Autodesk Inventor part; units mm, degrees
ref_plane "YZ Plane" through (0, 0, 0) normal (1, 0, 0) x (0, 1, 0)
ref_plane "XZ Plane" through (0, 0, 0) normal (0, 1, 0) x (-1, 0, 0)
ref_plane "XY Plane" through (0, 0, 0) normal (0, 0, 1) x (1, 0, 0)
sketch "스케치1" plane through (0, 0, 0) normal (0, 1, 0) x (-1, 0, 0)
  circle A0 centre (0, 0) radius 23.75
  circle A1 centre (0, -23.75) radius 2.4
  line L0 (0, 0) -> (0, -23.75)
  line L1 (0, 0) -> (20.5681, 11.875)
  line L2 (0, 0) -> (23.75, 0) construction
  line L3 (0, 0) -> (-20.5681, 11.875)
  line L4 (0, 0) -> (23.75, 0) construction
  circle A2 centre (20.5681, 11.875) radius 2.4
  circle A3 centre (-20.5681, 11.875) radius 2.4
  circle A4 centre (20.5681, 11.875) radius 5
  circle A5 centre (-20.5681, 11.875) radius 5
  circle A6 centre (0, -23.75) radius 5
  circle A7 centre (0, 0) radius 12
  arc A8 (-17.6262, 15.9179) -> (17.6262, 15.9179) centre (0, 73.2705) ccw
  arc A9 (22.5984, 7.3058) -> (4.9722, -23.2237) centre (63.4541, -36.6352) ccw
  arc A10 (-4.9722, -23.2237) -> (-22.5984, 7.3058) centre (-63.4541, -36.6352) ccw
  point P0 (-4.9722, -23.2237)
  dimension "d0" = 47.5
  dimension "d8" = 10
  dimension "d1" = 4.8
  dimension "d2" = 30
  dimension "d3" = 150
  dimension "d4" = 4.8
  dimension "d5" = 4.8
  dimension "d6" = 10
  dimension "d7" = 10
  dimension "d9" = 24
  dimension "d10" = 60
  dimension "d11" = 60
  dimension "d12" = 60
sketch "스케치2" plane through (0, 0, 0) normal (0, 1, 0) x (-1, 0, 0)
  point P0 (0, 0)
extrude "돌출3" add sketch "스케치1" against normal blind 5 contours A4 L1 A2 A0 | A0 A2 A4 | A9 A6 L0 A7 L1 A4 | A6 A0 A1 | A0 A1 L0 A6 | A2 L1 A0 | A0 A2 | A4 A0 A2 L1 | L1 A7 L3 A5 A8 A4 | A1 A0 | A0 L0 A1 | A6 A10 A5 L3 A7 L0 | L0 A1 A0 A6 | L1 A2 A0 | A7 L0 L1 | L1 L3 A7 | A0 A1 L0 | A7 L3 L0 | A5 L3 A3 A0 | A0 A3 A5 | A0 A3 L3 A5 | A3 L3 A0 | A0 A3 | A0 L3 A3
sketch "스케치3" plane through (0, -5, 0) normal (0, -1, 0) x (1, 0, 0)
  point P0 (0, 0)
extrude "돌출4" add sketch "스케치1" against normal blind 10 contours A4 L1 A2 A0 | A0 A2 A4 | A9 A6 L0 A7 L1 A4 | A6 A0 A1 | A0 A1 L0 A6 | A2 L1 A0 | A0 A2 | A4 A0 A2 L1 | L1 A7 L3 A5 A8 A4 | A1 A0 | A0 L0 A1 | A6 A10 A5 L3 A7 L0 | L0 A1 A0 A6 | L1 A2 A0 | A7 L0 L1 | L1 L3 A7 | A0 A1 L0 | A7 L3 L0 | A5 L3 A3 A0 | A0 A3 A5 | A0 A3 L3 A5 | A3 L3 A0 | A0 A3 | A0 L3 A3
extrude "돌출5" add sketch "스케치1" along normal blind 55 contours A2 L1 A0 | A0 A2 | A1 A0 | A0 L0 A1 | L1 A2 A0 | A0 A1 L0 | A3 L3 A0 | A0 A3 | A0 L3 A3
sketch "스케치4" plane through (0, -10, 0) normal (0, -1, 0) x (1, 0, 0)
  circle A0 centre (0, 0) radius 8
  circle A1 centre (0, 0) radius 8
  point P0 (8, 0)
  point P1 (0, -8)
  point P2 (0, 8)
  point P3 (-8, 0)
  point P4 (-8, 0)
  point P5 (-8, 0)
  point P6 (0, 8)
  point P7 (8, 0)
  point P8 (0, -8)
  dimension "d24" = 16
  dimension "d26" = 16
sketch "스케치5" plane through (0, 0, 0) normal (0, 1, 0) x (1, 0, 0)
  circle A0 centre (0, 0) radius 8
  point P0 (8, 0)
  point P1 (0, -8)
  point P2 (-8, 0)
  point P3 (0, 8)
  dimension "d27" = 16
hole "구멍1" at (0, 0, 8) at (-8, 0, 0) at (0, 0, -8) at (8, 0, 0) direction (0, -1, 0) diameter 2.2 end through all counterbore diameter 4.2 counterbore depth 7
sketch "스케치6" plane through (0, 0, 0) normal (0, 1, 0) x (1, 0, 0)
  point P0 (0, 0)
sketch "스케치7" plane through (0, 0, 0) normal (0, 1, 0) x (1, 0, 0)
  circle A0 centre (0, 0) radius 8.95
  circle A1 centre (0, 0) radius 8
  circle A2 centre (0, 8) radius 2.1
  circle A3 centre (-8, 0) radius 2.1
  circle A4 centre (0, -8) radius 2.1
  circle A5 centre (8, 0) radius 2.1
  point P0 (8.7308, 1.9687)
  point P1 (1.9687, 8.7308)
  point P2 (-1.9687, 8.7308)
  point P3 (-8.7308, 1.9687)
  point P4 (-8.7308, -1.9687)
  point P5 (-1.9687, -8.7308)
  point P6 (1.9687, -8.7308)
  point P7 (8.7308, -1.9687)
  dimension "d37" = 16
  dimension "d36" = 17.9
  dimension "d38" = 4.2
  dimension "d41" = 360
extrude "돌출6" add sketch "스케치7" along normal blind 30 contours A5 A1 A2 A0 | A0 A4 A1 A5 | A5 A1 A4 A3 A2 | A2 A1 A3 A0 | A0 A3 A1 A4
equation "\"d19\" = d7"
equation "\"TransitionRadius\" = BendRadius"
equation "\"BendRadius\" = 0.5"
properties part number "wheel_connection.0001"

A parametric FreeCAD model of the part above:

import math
import FreeCAD as App
import Part
import Sketcher

V = App.Vector
Q = App.Units.Quantity

doc = App.newDocument("Part")
body = doc.addObject("PartDesign::Body", "Body")

sketch1 = body.newObject("Sketcher::SketchObject", "Sketch")
sketch1.AttachmentSupport = (doc.getObject("XZ_Plane"), [""])
sketch1.MapMode = "FlatFace"
sketch1.addGeometry(Part.ArcOfCircle(Part.Circle(V(-63, -37, 0), V(0, 0, 1), 60), math.radians(13), math.radians(47)), False)
sketch1.addGeometry(Part.ArcOfCircle(Part.Circle(V(-21, 12, 0), V(0, 0, 1), 5), math.radians(54), math.radians(246)), False)
sketch1.addGeometry(Part.ArcOfCircle(Part.Circle(V(0, 73, 0), V(0, 0, 1), 60), math.radians(-107), math.radians(-73)), False)
sketch1.addGeometry(Part.ArcOfCircle(Part.Circle(V(21, 12, 0), V(0, 0, 1), 5), math.radians(-66), math.radians(126)), False)
sketch1.addGeometry(Part.ArcOfCircle(Part.Circle(V(63, -37, 0), V(0, 0, 1), 60), math.radians(133), math.radians(167)), False)
sketch1.addGeometry(Part.ArcOfCircle(Part.Circle(V(0, -24, 0), V(0, 0, 1), 5), math.radians(174), math.radians(366)), False)
sketch1.addConstraint(Sketcher.Constraint("Coincident", 0, 2, 1, 2))
sketch1.addConstraint(Sketcher.Constraint("Coincident", 1, 1, 2, 1))
sketch1.addConstraint(Sketcher.Constraint("Coincident", 2, 2, 3, 2))
sketch1.addConstraint(Sketcher.Constraint("Coincident", 3, 1, 4, 1))
sketch1.addConstraint(Sketcher.Constraint("Coincident", 4, 2, 5, 2))
sketch1.addConstraint(Sketcher.Constraint("Coincident", 5, 1, 0, 1))
sketch1.addConstraint(Sketcher.Constraint("Equal", 0, 2))
sketch1.addConstraint(Sketcher.Constraint("Equal", 1, 3))
sketch1.addConstraint(Sketcher.Constraint("Equal", 2, 4))
sketch1.addConstraint(Sketcher.Constraint("Equal", 3, 5))
sketch1.addConstraint(Sketcher.Constraint("Symmetric", 1, 3, 3, 3, -2))
sketch1.addConstraint(Sketcher.Constraint("Symmetric", 0, 3, 4, 3, -2))
sketch1.addConstraint(Sketcher.Constraint("PointOnObject", 2, 3, -2))
sketch1.addConstraint(Sketcher.Constraint("PointOnObject", 5, 3, -2))
sketch1.addConstraint(Sketcher.Constraint("Radius", 0, Q("60 mm")))
sketch1.addConstraint(Sketcher.Constraint("Radius", 1, Q("5 mm")))
sketch1.addConstraint(Sketcher.Constraint("DistanceY", 5, 3, -1, 1, Q("23.75 mm")))
sketch1.addConstraint(Sketcher.Constraint("DistanceX", 0, 3, -1, 1, Q("63.454 mm")))
sketch1.addConstraint(Sketcher.Constraint("DistanceX", 1, 3, -1, 1, Q("20.568 mm")))
sketch1.addConstraint(Sketcher.Constraint("DistanceY", -1, 1, 1, 3, Q("11.875 mm")))
sketch1.addConstraint(Sketcher.Constraint("DistanceY", -1, 1, 1, 1, Q("15.918 mm")))
sketch1.addConstraint(Sketcher.Constraint("DistanceY", 0, 3, 0, 2, Q("43.941 mm")))
pad1 = body.newObject("PartDesign::Pad", "Pad")
pad1.Profile = sketch1
pad1.Length = 5

sketch2 = body.newObject("Sketcher::SketchObject", "Sketch001")
sketch2.AttachmentSupport = (doc.getObject("XZ_Plane"), [""])
sketch2.MapMode = "FlatFace"
sketch2.addGeometry(Part.ArcOfCircle(Part.Circle(V(-63, -37, 0), V(0, 0, 1), 60), math.radians(13), math.radians(47)), False)
sketch2.addGeometry(Part.ArcOfCircle(Part.Circle(V(-21, 12, 0), V(0, 0, 1), 5), math.radians(54), math.radians(246)), False)
sketch2.addGeometry(Part.ArcOfCircle(Part.Circle(V(0, 73, 0), V(0, 0, 1), 60), math.radians(-107), math.radians(-73)), False)
sketch2.addGeometry(Part.ArcOfCircle(Part.Circle(V(21, 12, 0), V(0, 0, 1), 5), math.radians(-66), math.radians(126)), False)
sketch2.addGeometry(Part.ArcOfCircle(Part.Circle(V(63, -37, 0), V(0, 0, 1), 60), math.radians(133), math.radians(167)), False)
sketch2.addGeometry(Part.ArcOfCircle(Part.Circle(V(0, -24, 0), V(0, 0, 1), 5), math.radians(174), math.radians(366)), False)
sketch2.addConstraint(Sketcher.Constraint("Coincident", 0, 2, 1, 2))
sketch2.addConstraint(Sketcher.Constraint("Coincident", 1, 1, 2, 1))
sketch2.addConstraint(Sketcher.Constraint("Coincident", 2, 2, 3, 2))
sketch2.addConstraint(Sketcher.Constraint("Coincident", 3, 1, 4, 1))
sketch2.addConstraint(Sketcher.Constraint("Coincident", 4, 2, 5, 2))
sketch2.addConstraint(Sketcher.Constraint("Coincident", 5, 1, 0, 1))
sketch2.addConstraint(Sketcher.Constraint("Equal", 0, 2))
sketch2.addConstraint(Sketcher.Constraint("Equal", 1, 3))
sketch2.addConstraint(Sketcher.Constraint("Equal", 2, 4))
sketch2.addConstraint(Sketcher.Constraint("Equal", 3, 5))
sketch2.addConstraint(Sketcher.Constraint("Symmetric", 1, 3, 3, 3, -2))
sketch2.addConstraint(Sketcher.Constraint("Symmetric", 0, 3, 4, 3, -2))
sketch2.addConstraint(Sketcher.Constraint("PointOnObject", 2, 3, -2))
sketch2.addConstraint(Sketcher.Constraint("PointOnObject", 5, 3, -2))
sketch2.addConstraint(Sketcher.Constraint("Radius", 0, Q("60 mm")))
sketch2.addConstraint(Sketcher.Constraint("Radius", 1, Q("5 mm")))
sketch2.addConstraint(Sketcher.Constraint("DistanceY", 5, 3, -1, 1, Q("23.75 mm")))
sketch2.addConstraint(Sketcher.Constraint("DistanceX", 0, 3, -1, 1, Q("63.454 mm")))
sketch2.addConstraint(Sketcher.Constraint("DistanceX", 1, 3, -1, 1, Q("20.568 mm")))
sketch2.addConstraint(Sketcher.Constraint("DistanceY", -1, 1, 1, 3, Q("11.875 mm")))
sketch2.addConstraint(Sketcher.Constraint("DistanceY", -1, 1, 1, 1, Q("15.918 mm")))
sketch2.addConstraint(Sketcher.Constraint("DistanceY", 0, 3, 0, 2, Q("43.941 mm")))
pad2 = body.newObject("PartDesign::Pad", "Pad001")
pad2.Profile = sketch2
pad2.Length = 10

sketch3 = body.newObject("Sketcher::SketchObject", "Sketch002")
sketch3.AttachmentSupport = (doc.getObject("XZ_Plane"), [""])
sketch3.MapMode = "FlatFace"
sketch3.addGeometry(Part.Circle(V(-20.6, 11.9, 0), V(0, 0, 1), 2.4), False)
sketch3.addGeometry(Part.Circle(V(0, -23.8, 0), V(0, 0, 1), 2.4), False)
sketch3.addGeometry(Part.Circle(V(20.6, 11.9, 0), V(0, 0, 1), 2.4), False)
sketch3.addConstraint(Sketcher.Constraint("Equal", 0, 1))
sketch3.addConstraint(Sketcher.Constraint("Equal", 1, 2))
sketch3.addConstraint(Sketcher.Constraint("Symmetric", 0, 3, 2, 3, -2))
sketch3.addConstraint(Sketcher.Constraint("PointOnObject", 1, 3, -2))
sketch3.addConstraint(Sketcher.Constraint("Diameter", 0, Q("4.8 mm")))
sketch3.addConstraint(Sketcher.Constraint("DistanceY", 1, 3, -1, 1, Q("23.75 mm")))
sketch3.addConstraint(Sketcher.Constraint("DistanceX", 0, 3, -1, 1, Q("20.568 mm")))
sketch3.addConstraint(Sketcher.Constraint("DistanceY", -1, 1, 0, 3, Q("11.875 mm")))
pad3 = body.newObject("PartDesign::Pad", "Pad002")
pad3.Profile = sketch3
pad3.Length = 55
pad3.Reversed = True

sketch4 = body.newObject("Sketcher::SketchObject", "Sketch003")
sketch4.AttachmentSupport = (doc.getObject("XZ_Plane"), [""])
sketch4.MapMode = "FlatFace"
sketch4.addGeometry(Part.Circle(V(0, 8, 0), V(0, 0, 1), 1.1), False)
sketch4.addGeometry(Part.Circle(V(-8, 0, 0), V(0, 0, 1), 1.1), False)
sketch4.addGeometry(Part.Circle(V(0, -8, 0), V(0, 0, 1), 1.1), False)
sketch4.addGeometry(Part.Circle(V(8, 0, 0), V(0, 0, 1), 1.1), False)
sketch4.addConstraint(Sketcher.Constraint("Equal", 0, 1))
sketch4.addConstraint(Sketcher.Constraint("Equal", 1, 2))
sketch4.addConstraint(Sketcher.Constraint("Equal", 2, 3))
sketch4.addConstraint(Sketcher.Constraint("Symmetric", 0, 3, 2, 3, -1, 1))
sketch4.addConstraint(Sketcher.Constraint("Symmetric", 1, 3, 3, 3, -1, 1))
sketch4.addConstraint(Sketcher.Constraint("PointOnObject", 0, 3, -2))
sketch4.addConstraint(Sketcher.Constraint("PointOnObject", 1, 3, -1))
sketch4.addConstraint(Sketcher.Constraint("Diameter", 0, Q("2.2 mm")))
sketch4.addConstraint(Sketcher.Constraint("DistanceY", -1, 1, 0, 3, Q("8 mm")))
sketch4.addConstraint(Sketcher.Constraint("DistanceX", 1, 3, -1, 1, Q("8 mm")))
doc.recompute()
hole = body.newObject("PartDesign::Hole", "Hole")
hole.Profile = sketch4
hole.ThreadType = "None"
hole.Diameter = 2.2
hole.DepthType = "ThroughAll"
hole.HoleCutType = "Counterbore"
hole.HoleCutDiameter = 4.2
hole.HoleCutDepth = 7
hole.Reversed = True

sketch5 = body.newObject("Sketcher::SketchObject", "Sketch004")
sketch5.AttachmentSupport = (doc.getObject("XZ_Plane"), [""])
sketch5.MapMode = "FlatFace"
sketch5.addGeometry(Part.ArcOfCircle(Part.Circle(V(0, 0, 0), V(0, 0, 1), 8.9), math.radians(-77), math.radians(-13)), False)
sketch5.addGeometry(Part.ArcOfCircle(Part.Circle(V(0, -8, 0), V(0, 0, 1), 2.1), math.radians(-20), math.radians(200)), False)
sketch5.addGeometry(Part.ArcOfCircle(Part.Circle(V(0, 0, 0), V(0, 0, 1), 8.9), math.radians(-167), math.radians(-103)), False)
sketch5.addGeometry(Part.ArcOfCircle(Part.Circle(V(-8, 0, 0), V(0, 0, 1), 2.1), math.radians(-110), math.radians(110)), False)
sketch5.addGeometry(Part.ArcOfCircle(Part.Circle(V(0, 0, 0), V(0, 0, 1), 8.9), math.radians(103), math.radians(167)), False)
sketch5.addGeometry(Part.ArcOfCircle(Part.Circle(V(0, 8, 0), V(0, 0, 1), 2.1), math.radians(160), math.radians(380)), False)
sketch5.addGeometry(Part.ArcOfCircle(Part.Circle(V(0, 0, 0), V(0, 0, 1), 8.9), math.radians(13), math.radians(77)), False)
sketch5.addGeometry(Part.ArcOfCircle(Part.Circle(V(8, 0, 0), V(0, 0, 1), 2.1), math.radians(70), math.radians(290)), False)
sketch5.addConstraint(Sketcher.Constraint("Coincident", 0, 1, 1, 1))
sketch5.addConstraint(Sketcher.Constraint("Coincident", 1, 2, 2, 2))
sketch5.addConstraint(Sketcher.Constraint("Coincident", 2, 1, 3, 1))
sketch5.addConstraint(Sketcher.Constraint("Coincident", 3, 2, 4, 2))
sketch5.addConstraint(Sketcher.Constraint("Coincident", 4, 1, 5, 1))
sketch5.addConstraint(Sketcher.Constraint("Coincident", 5, 2, 6, 2))
sketch5.addConstraint(Sketcher.Constraint("Coincident", 6, 1, 7, 1))
sketch5.addConstraint(Sketcher.Constraint("Coincident", 7, 2, 0, 2))
sketch5.addConstraint(Sketcher.Constraint("Coincident", 0, 3, -1, 1))
sketch5.addConstraint(Sketcher.Constraint("Coincident", 2, 3, -1, 1))
sketch5.addConstraint(Sketcher.Constraint("Coincident", 4, 3, -1, 1))
sketch5.addConstraint(Sketcher.Constraint("Coincident", 6, 3, -1, 1))
sketch5.addConstraint(Sketcher.Constraint("Equal", 0, 2))
sketch5.addConstraint(Sketcher.Constraint("Equal", 1, 3))
sketch5.addConstraint(Sketcher.Constraint("Equal", 2, 4))
sketch5.addConstraint(Sketcher.Constraint("Equal", 3, 5))
sketch5.addConstraint(Sketcher.Constraint("Equal", 4, 6))
sketch5.addConstraint(Sketcher.Constraint("Equal", 5, 7))
sketch5.addConstraint(Sketcher.Constraint("Symmetric", 1, 3, 5, 3, -1, 1))
sketch5.addConstraint(Sketcher.Constraint("Symmetric", 3, 3, 7, 3, -1, 1))
sketch5.addConstraint(Sketcher.Constraint("PointOnObject", 1, 3, -2))
sketch5.addConstraint(Sketcher.Constraint("PointOnObject", 3, 3, -1))
sketch5.addConstraint(Sketcher.Constraint("Radius", 1, Q("2.1 mm")))
sketch5.addConstraint(Sketcher.Constraint("Radius", 0, Q("8.95 mm")))
sketch5.addConstraint(Sketcher.Constraint("DistanceY", 1, 3, 5, 3, Q("16 mm")))
sketch5.addConstraint(Sketcher.Constraint("DistanceX", 3, 3, -1, 1, Q("8 mm")))
pad4 = body.newObject("PartDesign::Pad", "Pad003")
pad4.Profile = sketch5
pad4.Length = 30
pad4.Reversed = True

doc.recompute()
